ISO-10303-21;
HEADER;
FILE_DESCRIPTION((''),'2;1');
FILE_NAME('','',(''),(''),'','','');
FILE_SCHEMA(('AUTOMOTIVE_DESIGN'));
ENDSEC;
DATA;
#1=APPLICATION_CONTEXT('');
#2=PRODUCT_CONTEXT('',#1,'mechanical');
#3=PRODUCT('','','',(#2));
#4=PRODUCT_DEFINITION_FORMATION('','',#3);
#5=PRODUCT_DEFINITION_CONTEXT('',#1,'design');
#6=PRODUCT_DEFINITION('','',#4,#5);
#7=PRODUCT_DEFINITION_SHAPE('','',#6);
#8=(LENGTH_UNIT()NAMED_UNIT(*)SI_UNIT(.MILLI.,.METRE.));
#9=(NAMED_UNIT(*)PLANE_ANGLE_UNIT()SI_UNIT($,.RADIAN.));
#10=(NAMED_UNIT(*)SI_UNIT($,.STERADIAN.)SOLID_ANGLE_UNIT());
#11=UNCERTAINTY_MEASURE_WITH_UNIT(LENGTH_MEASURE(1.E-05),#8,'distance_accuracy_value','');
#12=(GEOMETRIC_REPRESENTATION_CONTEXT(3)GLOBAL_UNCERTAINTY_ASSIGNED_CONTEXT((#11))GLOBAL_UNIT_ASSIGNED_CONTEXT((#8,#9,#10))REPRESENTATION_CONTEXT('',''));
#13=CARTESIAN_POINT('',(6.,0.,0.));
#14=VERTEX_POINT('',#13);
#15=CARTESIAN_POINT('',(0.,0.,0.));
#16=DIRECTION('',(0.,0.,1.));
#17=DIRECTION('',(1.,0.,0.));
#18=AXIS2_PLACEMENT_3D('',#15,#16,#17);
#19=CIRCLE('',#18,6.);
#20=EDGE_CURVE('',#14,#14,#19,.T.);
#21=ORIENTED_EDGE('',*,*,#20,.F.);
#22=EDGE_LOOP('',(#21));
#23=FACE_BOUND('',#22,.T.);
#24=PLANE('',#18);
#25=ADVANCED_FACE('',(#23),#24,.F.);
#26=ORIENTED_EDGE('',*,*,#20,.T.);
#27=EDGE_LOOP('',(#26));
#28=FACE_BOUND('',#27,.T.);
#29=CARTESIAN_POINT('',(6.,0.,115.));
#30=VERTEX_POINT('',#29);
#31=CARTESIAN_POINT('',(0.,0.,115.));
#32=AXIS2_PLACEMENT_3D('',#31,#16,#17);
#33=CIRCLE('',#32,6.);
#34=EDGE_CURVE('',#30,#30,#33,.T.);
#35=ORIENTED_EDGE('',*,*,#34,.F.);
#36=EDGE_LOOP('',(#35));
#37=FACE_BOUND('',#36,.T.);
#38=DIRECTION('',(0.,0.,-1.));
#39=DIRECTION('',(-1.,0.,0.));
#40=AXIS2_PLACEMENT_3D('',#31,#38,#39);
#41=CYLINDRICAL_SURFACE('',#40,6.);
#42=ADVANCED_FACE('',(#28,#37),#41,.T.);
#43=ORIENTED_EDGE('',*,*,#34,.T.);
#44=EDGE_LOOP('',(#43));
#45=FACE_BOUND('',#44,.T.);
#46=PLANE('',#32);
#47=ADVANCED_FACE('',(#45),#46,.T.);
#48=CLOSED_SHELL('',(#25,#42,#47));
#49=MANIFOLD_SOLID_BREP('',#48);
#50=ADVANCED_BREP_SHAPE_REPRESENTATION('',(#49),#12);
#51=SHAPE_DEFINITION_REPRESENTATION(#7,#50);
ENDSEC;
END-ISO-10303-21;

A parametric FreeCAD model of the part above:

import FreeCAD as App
import Part
import Sketcher
from FreeCAD import Vector

doc = App.newDocument("Part")
body = doc.addObject("PartDesign::Body", "Body")

# Sketch on XY plane
sketch1 = body.newObject("Sketcher::SketchObject", "Sketch")
sketch1.AttachmentSupport = (doc.getObject("XY_Plane"), [""])
sketch1.MapMode = "FlatFace"
sketch1.addGeometry(Part.Circle(Vector(0, 0, 0), Vector(0, 0, 1), 6), False)
sketch1.addConstraint([
    Sketcher.Constraint("Coincident", 0, 3, -1, 1),
    Sketcher.Constraint("Diameter", 0, 12.0),
])
pad1 = body.newObject("PartDesign::Pad", "Pad")
pad1.Profile = sketch1
pad1.Length = 115

doc.recompute()
